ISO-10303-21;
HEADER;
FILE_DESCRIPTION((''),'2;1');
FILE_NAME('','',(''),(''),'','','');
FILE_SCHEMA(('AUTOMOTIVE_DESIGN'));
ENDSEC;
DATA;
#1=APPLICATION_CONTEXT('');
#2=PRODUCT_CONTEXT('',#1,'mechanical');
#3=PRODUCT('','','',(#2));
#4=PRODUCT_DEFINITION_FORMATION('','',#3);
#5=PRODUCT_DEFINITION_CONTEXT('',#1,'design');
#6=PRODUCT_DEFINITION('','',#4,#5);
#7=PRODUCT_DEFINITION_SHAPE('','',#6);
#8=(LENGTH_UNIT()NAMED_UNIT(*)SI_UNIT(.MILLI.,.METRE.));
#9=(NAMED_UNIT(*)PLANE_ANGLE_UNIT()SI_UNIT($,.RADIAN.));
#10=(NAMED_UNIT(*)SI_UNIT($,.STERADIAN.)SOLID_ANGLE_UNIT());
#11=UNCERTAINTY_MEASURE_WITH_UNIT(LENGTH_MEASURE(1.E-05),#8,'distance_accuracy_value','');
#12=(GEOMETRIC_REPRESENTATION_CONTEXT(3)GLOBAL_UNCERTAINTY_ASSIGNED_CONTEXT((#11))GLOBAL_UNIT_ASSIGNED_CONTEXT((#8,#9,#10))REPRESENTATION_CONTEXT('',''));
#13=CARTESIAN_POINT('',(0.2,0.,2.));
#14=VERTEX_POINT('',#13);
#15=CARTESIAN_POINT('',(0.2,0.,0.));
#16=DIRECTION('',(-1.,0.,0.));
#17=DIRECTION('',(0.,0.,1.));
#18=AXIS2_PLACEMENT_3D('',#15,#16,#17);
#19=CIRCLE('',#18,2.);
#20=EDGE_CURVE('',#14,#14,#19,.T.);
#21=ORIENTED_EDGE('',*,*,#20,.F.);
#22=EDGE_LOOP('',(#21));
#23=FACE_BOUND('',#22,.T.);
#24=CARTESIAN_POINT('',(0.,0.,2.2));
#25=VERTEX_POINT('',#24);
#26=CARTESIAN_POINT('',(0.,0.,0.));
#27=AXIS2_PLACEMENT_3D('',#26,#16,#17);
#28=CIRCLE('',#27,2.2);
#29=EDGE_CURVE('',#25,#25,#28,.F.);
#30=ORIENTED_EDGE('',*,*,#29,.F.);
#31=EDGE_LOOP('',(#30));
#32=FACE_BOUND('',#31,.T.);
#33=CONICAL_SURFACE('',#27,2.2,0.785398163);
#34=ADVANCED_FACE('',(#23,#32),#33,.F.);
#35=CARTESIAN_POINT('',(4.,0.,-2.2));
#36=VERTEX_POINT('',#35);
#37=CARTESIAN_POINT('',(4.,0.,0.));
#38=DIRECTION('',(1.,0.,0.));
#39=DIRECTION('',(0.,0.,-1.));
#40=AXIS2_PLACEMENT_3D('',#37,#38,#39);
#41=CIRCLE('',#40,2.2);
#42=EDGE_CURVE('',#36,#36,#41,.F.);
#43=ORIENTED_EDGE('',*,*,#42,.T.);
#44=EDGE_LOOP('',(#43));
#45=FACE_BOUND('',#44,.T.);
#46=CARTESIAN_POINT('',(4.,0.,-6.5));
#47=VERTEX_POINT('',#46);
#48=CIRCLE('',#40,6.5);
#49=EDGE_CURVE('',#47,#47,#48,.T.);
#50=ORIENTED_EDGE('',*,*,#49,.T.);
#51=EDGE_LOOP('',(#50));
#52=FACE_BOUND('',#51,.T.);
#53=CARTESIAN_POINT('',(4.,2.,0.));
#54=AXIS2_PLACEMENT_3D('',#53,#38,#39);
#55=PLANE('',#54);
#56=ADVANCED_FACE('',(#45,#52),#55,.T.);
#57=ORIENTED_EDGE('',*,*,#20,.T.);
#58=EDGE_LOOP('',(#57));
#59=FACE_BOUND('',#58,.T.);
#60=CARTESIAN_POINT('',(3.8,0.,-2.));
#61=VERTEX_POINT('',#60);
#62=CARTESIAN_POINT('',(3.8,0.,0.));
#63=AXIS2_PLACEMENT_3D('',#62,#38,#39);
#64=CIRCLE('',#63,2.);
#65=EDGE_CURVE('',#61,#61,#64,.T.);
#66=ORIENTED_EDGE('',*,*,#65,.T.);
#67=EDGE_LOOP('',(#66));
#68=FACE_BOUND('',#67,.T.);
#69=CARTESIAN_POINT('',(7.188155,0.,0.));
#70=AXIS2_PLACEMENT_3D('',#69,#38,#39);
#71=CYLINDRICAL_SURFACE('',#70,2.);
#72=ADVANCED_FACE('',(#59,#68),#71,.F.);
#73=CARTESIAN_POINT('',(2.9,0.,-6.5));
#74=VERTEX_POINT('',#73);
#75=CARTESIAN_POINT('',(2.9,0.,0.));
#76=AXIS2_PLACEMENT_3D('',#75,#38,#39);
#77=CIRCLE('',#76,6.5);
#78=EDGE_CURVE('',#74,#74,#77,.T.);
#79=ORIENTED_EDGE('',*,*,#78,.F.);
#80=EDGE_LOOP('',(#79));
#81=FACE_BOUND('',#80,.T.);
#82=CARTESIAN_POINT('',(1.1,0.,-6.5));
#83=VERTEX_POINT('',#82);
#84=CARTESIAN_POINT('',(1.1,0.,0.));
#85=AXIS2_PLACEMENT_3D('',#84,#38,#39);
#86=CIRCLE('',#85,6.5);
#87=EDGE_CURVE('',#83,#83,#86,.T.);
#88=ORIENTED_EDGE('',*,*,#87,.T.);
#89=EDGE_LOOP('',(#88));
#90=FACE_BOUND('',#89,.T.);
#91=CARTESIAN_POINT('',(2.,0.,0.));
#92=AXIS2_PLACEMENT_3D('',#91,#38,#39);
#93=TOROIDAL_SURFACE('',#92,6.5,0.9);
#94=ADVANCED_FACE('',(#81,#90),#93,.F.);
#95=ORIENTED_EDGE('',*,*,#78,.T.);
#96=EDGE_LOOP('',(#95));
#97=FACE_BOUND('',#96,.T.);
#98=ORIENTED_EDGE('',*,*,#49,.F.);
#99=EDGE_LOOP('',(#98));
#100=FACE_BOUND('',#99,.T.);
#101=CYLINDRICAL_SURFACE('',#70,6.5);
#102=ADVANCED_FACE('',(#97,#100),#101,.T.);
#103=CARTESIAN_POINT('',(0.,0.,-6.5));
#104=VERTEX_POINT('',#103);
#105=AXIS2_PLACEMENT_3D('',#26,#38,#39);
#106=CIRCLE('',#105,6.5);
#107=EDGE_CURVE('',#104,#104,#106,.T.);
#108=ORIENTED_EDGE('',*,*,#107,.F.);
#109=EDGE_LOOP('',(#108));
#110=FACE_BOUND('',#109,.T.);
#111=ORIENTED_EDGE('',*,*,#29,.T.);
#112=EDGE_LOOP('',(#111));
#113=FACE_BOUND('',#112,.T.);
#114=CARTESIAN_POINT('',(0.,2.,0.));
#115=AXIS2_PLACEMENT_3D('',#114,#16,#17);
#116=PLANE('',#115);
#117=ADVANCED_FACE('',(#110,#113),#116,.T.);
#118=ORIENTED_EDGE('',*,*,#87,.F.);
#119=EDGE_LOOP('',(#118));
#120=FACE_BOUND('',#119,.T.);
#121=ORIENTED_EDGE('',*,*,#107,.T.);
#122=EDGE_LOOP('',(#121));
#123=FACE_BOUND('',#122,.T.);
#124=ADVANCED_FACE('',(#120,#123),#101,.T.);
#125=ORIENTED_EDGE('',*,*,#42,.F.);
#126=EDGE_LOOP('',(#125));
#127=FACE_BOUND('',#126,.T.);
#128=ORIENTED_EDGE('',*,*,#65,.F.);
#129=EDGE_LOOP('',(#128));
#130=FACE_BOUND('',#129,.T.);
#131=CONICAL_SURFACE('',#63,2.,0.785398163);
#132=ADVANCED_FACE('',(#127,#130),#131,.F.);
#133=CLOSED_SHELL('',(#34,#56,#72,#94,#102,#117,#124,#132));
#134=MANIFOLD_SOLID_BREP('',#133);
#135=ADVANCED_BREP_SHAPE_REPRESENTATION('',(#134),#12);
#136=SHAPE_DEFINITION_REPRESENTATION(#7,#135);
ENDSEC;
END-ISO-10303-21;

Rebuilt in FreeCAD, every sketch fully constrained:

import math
import FreeCAD as App
import Part
import Sketcher
from FreeCAD import Vector


def edges_at(feature, points):
    """Names of the edges that pass closest to the given points."""
    edges = feature.Shape.Edges
    near = lambda p: min(range(len(edges)), key=lambda i: edges[i].distToShape(Part.Vertex(*p))[0])
    return sorted({f"Edge{near(p) + 1}" for p in points})

doc = App.newDocument("Part")
body = doc.addObject("PartDesign::Body", "Body")

sketch1 = doc.addObject("Sketcher::SketchObject", "Sketch")
body.addObject(sketch1)
sketch1.AttachmentSupport = (doc.XY_Plane, [""])
sketch1.MapMode = "FlatFace"
sketch1.addGeometry([
    Part.LineSegment(Vector(0, 2, 0), Vector(4, 2, 0)),
    Part.LineSegment(Vector(4, 2, 0), Vector(4, 6.5, 0)),
    Part.LineSegment(Vector(4, 6.5, 0), Vector(2.9, 6.5, 0)),
    Part.ArcOfCircle(Part.Circle(Vector(2, 6.5, 0), Vector(0, 0, 1), 0.9), math.radians(180), math.radians(360)),
    Part.LineSegment(Vector(1.1, 6.5, 0), Vector(0, 6.5, 0)),
    Part.LineSegment(Vector(0, 6.5, 0), Vector(0, 2, 0)),
], False)
sketch1.addConstraint([
    Sketcher.Constraint("Coincident", 0, 2, 1, 1),
    Sketcher.Constraint("Coincident", 1, 2, 2, 1),
    Sketcher.Constraint("Coincident", 2, 2, 3, 2),
    Sketcher.Constraint("Coincident", 3, 1, 4, 1),
    Sketcher.Constraint("Coincident", 4, 2, 5, 1),
    Sketcher.Constraint("Coincident", 5, 2, 0, 1),
    Sketcher.Constraint("Horizontal", 0),
    Sketcher.Constraint("Vertical", 1),
    Sketcher.Constraint("Horizontal", 2),
    Sketcher.Constraint("Horizontal", 4),
    Sketcher.Constraint("Vertical", 5),
    Sketcher.Constraint("PointOnObject", 4, 2, -2),
    Sketcher.Constraint("Horizontal", 3, 3, 1, 2),
    Sketcher.Constraint("Horizontal", 2, 2, 3, 1),
    Sketcher.Constraint("Equal", 2, 4),
    Sketcher.Constraint("Radius", 3, 0.9),
    Sketcher.Constraint("DistanceX", 0, 1, 0, 2, 4.0),
    Sketcher.Constraint("DistanceY", 1, 1, 1, 2, 4.5),
    Sketcher.Constraint("DistanceY", -1, 1, 0, 2, 2.0),
])
revolution = doc.addObject("PartDesign::Revolution", "Revolution")
body.addObject(revolution)
revolution.Profile = sketch1
revolution.ReferenceAxis = (sketch1, ["H_Axis"])
revolution.Angle = 360
doc.recompute()

chamfer = doc.addObject("PartDesign::Chamfer", "Chamfer")
body.addObject(chamfer)
chamfer.Base = (revolution, edges_at(revolution, [(4, -2, 0), (0, -2, 0)]))
chamfer.Size = 0.2

doc.recompute()
